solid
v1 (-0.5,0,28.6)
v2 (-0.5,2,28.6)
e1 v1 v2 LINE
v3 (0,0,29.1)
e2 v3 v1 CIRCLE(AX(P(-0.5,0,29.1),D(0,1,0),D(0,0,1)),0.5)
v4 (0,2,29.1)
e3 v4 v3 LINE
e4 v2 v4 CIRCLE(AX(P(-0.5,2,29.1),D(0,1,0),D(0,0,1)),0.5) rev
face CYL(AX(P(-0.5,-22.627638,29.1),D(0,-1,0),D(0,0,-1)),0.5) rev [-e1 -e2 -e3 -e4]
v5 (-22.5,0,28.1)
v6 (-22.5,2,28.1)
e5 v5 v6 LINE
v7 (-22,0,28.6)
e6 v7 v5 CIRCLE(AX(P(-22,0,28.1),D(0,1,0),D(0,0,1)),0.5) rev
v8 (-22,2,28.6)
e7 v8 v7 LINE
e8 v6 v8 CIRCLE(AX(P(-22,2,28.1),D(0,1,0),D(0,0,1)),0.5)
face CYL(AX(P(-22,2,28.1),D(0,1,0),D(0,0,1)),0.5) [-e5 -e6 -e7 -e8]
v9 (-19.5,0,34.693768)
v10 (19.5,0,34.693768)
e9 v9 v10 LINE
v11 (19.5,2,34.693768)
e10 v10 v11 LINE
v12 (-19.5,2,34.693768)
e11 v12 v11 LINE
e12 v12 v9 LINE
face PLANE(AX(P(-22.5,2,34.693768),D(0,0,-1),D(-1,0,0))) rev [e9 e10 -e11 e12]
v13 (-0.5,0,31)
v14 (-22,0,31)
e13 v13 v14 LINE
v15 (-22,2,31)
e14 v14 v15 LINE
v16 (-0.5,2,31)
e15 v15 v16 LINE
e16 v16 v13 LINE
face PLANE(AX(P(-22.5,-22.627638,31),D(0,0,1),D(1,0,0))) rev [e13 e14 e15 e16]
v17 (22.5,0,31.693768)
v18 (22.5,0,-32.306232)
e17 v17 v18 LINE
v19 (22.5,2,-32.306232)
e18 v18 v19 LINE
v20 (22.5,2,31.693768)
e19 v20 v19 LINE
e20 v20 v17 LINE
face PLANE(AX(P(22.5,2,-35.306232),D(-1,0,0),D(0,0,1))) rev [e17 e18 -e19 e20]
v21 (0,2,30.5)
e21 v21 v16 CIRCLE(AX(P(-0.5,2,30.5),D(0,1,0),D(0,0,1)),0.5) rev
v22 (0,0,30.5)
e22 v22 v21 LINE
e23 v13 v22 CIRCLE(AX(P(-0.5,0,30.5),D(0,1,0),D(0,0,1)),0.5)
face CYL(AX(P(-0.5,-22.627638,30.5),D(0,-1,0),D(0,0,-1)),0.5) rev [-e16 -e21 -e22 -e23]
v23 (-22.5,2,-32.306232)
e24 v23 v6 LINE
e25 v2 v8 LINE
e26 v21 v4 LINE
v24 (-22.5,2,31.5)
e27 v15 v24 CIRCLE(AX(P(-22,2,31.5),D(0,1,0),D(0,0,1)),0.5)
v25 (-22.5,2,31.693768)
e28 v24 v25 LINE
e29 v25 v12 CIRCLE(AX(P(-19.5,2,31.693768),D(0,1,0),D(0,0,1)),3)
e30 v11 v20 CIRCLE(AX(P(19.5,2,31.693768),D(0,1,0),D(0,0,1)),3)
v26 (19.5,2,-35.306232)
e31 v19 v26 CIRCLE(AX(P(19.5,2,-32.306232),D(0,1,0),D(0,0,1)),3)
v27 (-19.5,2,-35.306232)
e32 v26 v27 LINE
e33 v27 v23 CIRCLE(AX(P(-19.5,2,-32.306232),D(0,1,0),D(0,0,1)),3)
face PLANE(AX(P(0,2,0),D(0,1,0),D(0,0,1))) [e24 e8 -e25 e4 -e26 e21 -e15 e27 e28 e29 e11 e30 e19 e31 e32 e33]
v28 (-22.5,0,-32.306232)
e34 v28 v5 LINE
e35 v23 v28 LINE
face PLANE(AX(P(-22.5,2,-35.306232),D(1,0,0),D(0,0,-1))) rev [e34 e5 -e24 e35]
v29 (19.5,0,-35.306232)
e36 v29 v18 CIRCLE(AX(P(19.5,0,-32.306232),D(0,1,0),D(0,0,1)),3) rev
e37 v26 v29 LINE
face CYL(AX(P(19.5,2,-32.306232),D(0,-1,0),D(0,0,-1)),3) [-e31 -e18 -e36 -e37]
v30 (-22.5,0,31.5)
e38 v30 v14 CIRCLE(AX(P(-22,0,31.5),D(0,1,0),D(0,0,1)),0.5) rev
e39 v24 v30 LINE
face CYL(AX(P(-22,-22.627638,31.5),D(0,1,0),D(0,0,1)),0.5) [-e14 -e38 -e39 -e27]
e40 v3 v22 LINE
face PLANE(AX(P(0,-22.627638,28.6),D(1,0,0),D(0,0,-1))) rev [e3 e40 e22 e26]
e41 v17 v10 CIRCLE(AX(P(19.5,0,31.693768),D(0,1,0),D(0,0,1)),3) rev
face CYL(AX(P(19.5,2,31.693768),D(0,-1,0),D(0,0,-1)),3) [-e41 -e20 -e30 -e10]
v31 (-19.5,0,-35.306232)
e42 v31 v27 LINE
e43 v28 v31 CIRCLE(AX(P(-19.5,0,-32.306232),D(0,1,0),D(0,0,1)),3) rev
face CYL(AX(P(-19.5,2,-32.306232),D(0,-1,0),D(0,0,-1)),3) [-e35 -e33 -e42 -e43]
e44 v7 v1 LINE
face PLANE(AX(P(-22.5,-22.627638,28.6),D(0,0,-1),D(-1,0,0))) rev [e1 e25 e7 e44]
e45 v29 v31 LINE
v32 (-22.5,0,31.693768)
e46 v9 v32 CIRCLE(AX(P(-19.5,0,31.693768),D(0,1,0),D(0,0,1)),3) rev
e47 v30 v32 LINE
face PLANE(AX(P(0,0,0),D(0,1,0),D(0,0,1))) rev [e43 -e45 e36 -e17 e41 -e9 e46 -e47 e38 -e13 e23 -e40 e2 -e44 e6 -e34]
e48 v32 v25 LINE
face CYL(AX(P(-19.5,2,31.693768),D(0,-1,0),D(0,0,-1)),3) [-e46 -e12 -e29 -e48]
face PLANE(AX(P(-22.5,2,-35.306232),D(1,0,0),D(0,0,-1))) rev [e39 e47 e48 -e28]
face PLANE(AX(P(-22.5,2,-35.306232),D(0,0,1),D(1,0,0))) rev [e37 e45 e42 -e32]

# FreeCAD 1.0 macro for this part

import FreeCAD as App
import Part
import Sketcher
from FreeCAD import Vector


def edges_at(feature, points):
    """Names of the edges that pass closest to the given points."""
    edges = feature.Shape.Edges
    near = lambda p: min(range(len(edges)), key=lambda i: edges[i].distToShape(Part.Vertex(*p))[0])
    return sorted({f"Edge{near(p) + 1}" for p in points})


def add_polygon(sketch, points):
    """Adds a closed chain of lines whose ends are joined by coincident constraints."""
    first, n = sketch.GeometryCount, len(points)
    for a, b in zip(points, points[1:] + points[:1]):
        sketch.addGeometry(Part.LineSegment(App.Vector(*a, 0), App.Vector(*b, 0)), False)
    for i in range(n):
        sketch.addConstraint(Sketcher.Constraint("Coincident", first + i, 2, first + (i + 1) % n, 1))

doc = App.newDocument("Part")
body = doc.addObject("PartDesign::Body", "Body")

# Sketch on XZ plane
sketch1 = body.newObject("Sketcher::SketchObject", "Sketch")
sketch1.AttachmentSupport = (doc.getObject("XZ_Plane"), [""])
sketch1.MapMode = "FlatFace"
add_polygon(sketch1, [(-22, -35), (-22, 35), (22, 35), (22, -35)])  # lines 0-3
sketch1.addConstraint([
    Sketcher.Constraint("Vertical", 0),
    Sketcher.Constraint("Horizontal", 1),
    Sketcher.Constraint("Vertical", 2),
    Sketcher.Constraint("Horizontal", 3),
    Sketcher.Constraint("DistanceX", 1, 1, 1, 2, 45.0),
    Sketcher.Constraint("DistanceY", 0, 1, 0, 2, 70.0),
    Sketcher.Constraint("DistanceX", 0, 2, -1, 1, 22.5),
    Sketcher.Constraint("DistanceY", -1, 1, 0, 2, 34.693768),
])
pad1 = body.newObject("PartDesign::Pad", "Pad")
pad1.Profile = sketch1
pad1.Length = 2
pad1.Reversed = True

# Sketch on XZ plane
sketch2 = body.newObject("Sketcher::SketchObject", "Sketch001")
sketch2.AttachmentSupport = (doc.getObject("XZ_Plane"), [""])
sketch2.MapMode = "FlatFace"
sketch2.AttachmentOffset = App.Placement(Vector(0, 0, -2), App.Rotation())
add_polygon(sketch2, [(-22.5, 28.6), (-22.5, 31), (0, 31), (0, 28.6)])  # lines 0-3
sketch2.addConstraint([
    Sketcher.Constraint("Vertical", 0),
    Sketcher.Constraint("Horizontal", 1),
    Sketcher.Constraint("Vertical", 2),
    Sketcher.Constraint("Horizontal", 3),
    Sketcher.Constraint("PointOnObject", 1, 2, -2),
    Sketcher.Constraint("DistanceX", 1, 1, 1, 2, 22.5),
    Sketcher.Constraint("DistanceY", 0, 1, 0, 2, 2.4),
    Sketcher.Constraint("DistanceY", -1, 1, 0, 2, 31.0),
])
pocket1 = body.newObject("PartDesign::Pocket", "Pocket")
pocket1.Profile = sketch2
pocket1.Length = 2
pocket1.Reversed = True
doc.recompute()

fillet = body.newObject("PartDesign::Fillet", "Fillet")
fillet.Base = (pocket1, edges_at(pocket1, [
    (-22.5, 1, -35.306),
    (22.5, 1, -35.306),
    (22.5, 1, 34.694),
    (-22.5, 1, 34.694),
]))
fillet.Radius = 3
doc.recompute()

fillet2 = body.newObject("PartDesign::Fillet", "Fillet001")
fillet2.Base = (fillet, edges_at(fillet, [
    (-22.5, 1, 31),
    (-22.5, 1, 28.6),
    (0, 1, 28.6),
    (0, 1, 31),
]))
fillet2.Radius = 0.5

doc.recompute()
